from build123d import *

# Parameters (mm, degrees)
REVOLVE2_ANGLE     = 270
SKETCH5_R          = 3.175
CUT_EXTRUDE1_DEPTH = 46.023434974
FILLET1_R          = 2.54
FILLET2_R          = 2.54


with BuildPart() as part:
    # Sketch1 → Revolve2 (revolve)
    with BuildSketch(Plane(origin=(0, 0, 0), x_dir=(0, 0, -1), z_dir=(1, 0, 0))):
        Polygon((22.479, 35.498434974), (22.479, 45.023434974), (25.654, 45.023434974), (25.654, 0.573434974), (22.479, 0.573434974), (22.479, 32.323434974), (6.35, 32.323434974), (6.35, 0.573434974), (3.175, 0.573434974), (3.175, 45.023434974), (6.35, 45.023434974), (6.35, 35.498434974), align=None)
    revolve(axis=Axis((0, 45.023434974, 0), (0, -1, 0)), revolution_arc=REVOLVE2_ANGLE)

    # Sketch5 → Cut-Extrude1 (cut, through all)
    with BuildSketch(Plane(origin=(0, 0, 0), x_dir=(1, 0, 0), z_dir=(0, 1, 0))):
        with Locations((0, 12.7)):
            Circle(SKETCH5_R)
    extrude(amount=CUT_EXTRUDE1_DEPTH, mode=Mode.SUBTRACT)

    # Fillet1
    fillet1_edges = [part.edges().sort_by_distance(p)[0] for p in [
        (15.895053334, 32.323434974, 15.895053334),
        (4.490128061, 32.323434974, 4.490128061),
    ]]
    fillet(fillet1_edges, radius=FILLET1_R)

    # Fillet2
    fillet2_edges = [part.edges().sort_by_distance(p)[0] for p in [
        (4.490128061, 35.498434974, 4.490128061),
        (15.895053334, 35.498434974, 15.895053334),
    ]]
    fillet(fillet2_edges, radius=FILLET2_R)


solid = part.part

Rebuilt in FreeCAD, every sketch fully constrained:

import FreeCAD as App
import Part
import Sketcher

V = App.Vector
Q = App.Units.Quantity


def edges_at(feature, points):
    """Names of the edges that pass closest to the given points."""
    edges = feature.Shape.Edges
    near = lambda p: min(range(len(edges)), key=lambda i: edges[i].distToShape(Part.Vertex(*p))[0])
    return sorted({f"Edge{near(p) + 1}" for p in points})

doc = App.newDocument("Part")
body = doc.addObject("PartDesign::Body", "Body")

# Sketch on YZ plane
sketch1 = doc.addObject("Sketcher::SketchObject", "Sketch")
body.addObject(sketch1)
sketch1.AttachmentSupport = (doc.YZ_Plane, [""])
sketch1.MapMode = "FlatFace"
sketch1.addGeometry(Part.LineSegment(V(45, -22.5, 0), V(35.5, -22.5, 0)), False)
sketch1.addGeometry(Part.LineSegment(V(35.5, -22.5, 0), V(35.5, -6.3, 0)), False)
sketch1.addGeometry(Part.LineSegment(V(35.5, -6.3, 0), V(45, -6.3, 0)), False)
sketch1.addGeometry(Part.LineSegment(V(45, -6.3, 0), V(45, -3.2, 0)), False)
sketch1.addGeometry(Part.LineSegment(V(45, -3.2, 0), V(0.6, -3.2, 0)), False)
sketch1.addGeometry(Part.LineSegment(V(0.6, -3.2, 0), V(0.6, -6.3, 0)), False)
sketch1.addGeometry(Part.LineSegment(V(0.6, -6.3, 0), V(32.3, -6.3, 0)), False)
sketch1.addGeometry(Part.LineSegment(V(32.3, -6.3, 0), V(32.3, -22.5, 0)), False)
sketch1.addGeometry(Part.LineSegment(V(32.3, -22.5, 0), V(0.6, -22.5, 0)), False)
sketch1.addGeometry(Part.LineSegment(V(0.6, -22.5, 0), V(0.6, -25.7, 0)), False)
sketch1.addGeometry(Part.LineSegment(V(0.6, -25.7, 0), V(45, -25.7, 0)), False)
sketch1.addGeometry(Part.LineSegment(V(45, -25.7, 0), V(45, -22.5, 0)), False)
sketch1.addConstraint(Sketcher.Constraint("Coincident", 0, 2, 1, 1))
sketch1.addConstraint(Sketcher.Constraint("Coincident", 1, 2, 2, 1))
sketch1.addConstraint(Sketcher.Constraint("Coincident", 2, 2, 3, 1))
sketch1.addConstraint(Sketcher.Constraint("Coincident", 3, 2, 4, 1))
sketch1.addConstraint(Sketcher.Constraint("Coincident", 4, 2, 5, 1))
sketch1.addConstraint(Sketcher.Constraint("Coincident", 5, 2, 6, 1))
sketch1.addConstraint(Sketcher.Constraint("Coincident", 6, 2, 7, 1))
sketch1.addConstraint(Sketcher.Constraint("Coincident", 7, 2, 8, 1))
sketch1.addConstraint(Sketcher.Constraint("Coincident", 8, 2, 9, 1))
sketch1.addConstraint(Sketcher.Constraint("Coincident", 9, 2, 10, 1))
sketch1.addConstraint(Sketcher.Constraint("Coincident", 10, 2, 11, 1))
sketch1.addConstraint(Sketcher.Constraint("Coincident", 11, 2, 0, 1))
sketch1.addConstraint(Sketcher.Constraint("Horizontal", 0))
sketch1.addConstraint(Sketcher.Constraint("Vertical", 1))
sketch1.addConstraint(Sketcher.Constraint("Horizontal", 2))
sketch1.addConstraint(Sketcher.Constraint("Vertical", 3))
sketch1.addConstraint(Sketcher.Constraint("Horizontal", 4))
sketch1.addConstraint(Sketcher.Constraint("Vertical", 5))
sketch1.addConstraint(Sketcher.Constraint("Horizontal", 6))
sketch1.addConstraint(Sketcher.Constraint("Vertical", 7))
sketch1.addConstraint(Sketcher.Constraint("Horizontal", 8))
sketch1.addConstraint(Sketcher.Constraint("Vertical", 9))
sketch1.addConstraint(Sketcher.Constraint("Horizontal", 10))
sketch1.addConstraint(Sketcher.Constraint("Vertical", 11))
sketch1.addConstraint(Sketcher.Constraint("Horizontal", 2, 2, 5, 2))
sketch1.addConstraint(Sketcher.Constraint("Horizontal", 0, 2, 7, 2))
sketch1.addConstraint(Sketcher.Constraint("Vertical", 5, 2, 8, 2))
sketch1.addConstraint(Sketcher.Constraint("Vertical", 3, 2, 10, 2))
sketch1.addConstraint(Sketcher.Constraint("Equal", 5, 9))
sketch1.addConstraint(Sketcher.Constraint("DistanceX", 4, 2, 4, 1, Q("1.75 in")))
sketch1.addConstraint(Sketcher.Constraint("DistanceX", 6, 1, 6, 2, Q("1.25 in")))
sketch1.addConstraint(Sketcher.Constraint("DistanceX", 0, 2, 0, 1, Q("0.375 in")))
sketch1.addConstraint(Sketcher.Constraint("DistanceY", 1, 1, 1, 2, Q("0.635 in")))
sketch1.addConstraint(Sketcher.Constraint("DistanceY", 3, 1, 3, 2, Q("0.125 in")))
sketch1.addConstraint(Sketcher.Constraint("DistanceY", 1, 2, -1, 1, Q("0.25 in")))
sketch1.addConstraint(Sketcher.Constraint("DistanceX", -1, 1, 0, 2, 35.498435))
revolution = doc.addObject("PartDesign::Revolution", "Revolution")
body.addObject(revolution)
revolution.Profile = sketch1
revolution.ReferenceAxis = (sketch1, ["H_Axis"])
revolution.Angle = 270
revolution.Reversed = True

# Sketch on XZ plane
sketch2 = doc.addObject("Sketcher::SketchObject", "Sketch001")
body.addObject(sketch2)
sketch2.AttachmentSupport = (doc.XZ_Plane, [""])
sketch2.MapMode = "FlatFace"
sketch2.addGeometry(Part.Circle(V(0, -12.7, 0), V(0, 0, 1), 3.2), False)
sketch2.addConstraint(Sketcher.Constraint("PointOnObject", 0, 3, -2))
sketch2.addConstraint(Sketcher.Constraint("Diameter", 0, Q("0.25 in")))
sketch2.addConstraint(Sketcher.Constraint("DistanceY", 0, 3, -1, 1, Q("0.5 in")))
pocket1 = doc.addObject("PartDesign::Pocket", "Pocket")
body.addObject(pocket1)
pocket1.Profile = sketch2
pocket1.Type = "ThroughAll"
doc.recompute()

fillet = doc.addObject("PartDesign::Fillet", "Fillet")
body.addObject(fillet)
fillet.Base = (pocket1, edges_at(pocket1, [(15.895, 32.323, 15.895), (4.49, 32.323, 4.49)]))
fillet.Radius = Q("0.1 in")
doc.recompute()

fillet2 = doc.addObject("PartDesign::Fillet", "Fillet001")
body.addObject(fillet2)
fillet2.Base = (fillet, edges_at(fillet, [(4.49, 35.498, 4.49), (15.895, 35.498, 15.895)]))
fillet2.Radius = Q("0.1 in")

doc.recompute()
